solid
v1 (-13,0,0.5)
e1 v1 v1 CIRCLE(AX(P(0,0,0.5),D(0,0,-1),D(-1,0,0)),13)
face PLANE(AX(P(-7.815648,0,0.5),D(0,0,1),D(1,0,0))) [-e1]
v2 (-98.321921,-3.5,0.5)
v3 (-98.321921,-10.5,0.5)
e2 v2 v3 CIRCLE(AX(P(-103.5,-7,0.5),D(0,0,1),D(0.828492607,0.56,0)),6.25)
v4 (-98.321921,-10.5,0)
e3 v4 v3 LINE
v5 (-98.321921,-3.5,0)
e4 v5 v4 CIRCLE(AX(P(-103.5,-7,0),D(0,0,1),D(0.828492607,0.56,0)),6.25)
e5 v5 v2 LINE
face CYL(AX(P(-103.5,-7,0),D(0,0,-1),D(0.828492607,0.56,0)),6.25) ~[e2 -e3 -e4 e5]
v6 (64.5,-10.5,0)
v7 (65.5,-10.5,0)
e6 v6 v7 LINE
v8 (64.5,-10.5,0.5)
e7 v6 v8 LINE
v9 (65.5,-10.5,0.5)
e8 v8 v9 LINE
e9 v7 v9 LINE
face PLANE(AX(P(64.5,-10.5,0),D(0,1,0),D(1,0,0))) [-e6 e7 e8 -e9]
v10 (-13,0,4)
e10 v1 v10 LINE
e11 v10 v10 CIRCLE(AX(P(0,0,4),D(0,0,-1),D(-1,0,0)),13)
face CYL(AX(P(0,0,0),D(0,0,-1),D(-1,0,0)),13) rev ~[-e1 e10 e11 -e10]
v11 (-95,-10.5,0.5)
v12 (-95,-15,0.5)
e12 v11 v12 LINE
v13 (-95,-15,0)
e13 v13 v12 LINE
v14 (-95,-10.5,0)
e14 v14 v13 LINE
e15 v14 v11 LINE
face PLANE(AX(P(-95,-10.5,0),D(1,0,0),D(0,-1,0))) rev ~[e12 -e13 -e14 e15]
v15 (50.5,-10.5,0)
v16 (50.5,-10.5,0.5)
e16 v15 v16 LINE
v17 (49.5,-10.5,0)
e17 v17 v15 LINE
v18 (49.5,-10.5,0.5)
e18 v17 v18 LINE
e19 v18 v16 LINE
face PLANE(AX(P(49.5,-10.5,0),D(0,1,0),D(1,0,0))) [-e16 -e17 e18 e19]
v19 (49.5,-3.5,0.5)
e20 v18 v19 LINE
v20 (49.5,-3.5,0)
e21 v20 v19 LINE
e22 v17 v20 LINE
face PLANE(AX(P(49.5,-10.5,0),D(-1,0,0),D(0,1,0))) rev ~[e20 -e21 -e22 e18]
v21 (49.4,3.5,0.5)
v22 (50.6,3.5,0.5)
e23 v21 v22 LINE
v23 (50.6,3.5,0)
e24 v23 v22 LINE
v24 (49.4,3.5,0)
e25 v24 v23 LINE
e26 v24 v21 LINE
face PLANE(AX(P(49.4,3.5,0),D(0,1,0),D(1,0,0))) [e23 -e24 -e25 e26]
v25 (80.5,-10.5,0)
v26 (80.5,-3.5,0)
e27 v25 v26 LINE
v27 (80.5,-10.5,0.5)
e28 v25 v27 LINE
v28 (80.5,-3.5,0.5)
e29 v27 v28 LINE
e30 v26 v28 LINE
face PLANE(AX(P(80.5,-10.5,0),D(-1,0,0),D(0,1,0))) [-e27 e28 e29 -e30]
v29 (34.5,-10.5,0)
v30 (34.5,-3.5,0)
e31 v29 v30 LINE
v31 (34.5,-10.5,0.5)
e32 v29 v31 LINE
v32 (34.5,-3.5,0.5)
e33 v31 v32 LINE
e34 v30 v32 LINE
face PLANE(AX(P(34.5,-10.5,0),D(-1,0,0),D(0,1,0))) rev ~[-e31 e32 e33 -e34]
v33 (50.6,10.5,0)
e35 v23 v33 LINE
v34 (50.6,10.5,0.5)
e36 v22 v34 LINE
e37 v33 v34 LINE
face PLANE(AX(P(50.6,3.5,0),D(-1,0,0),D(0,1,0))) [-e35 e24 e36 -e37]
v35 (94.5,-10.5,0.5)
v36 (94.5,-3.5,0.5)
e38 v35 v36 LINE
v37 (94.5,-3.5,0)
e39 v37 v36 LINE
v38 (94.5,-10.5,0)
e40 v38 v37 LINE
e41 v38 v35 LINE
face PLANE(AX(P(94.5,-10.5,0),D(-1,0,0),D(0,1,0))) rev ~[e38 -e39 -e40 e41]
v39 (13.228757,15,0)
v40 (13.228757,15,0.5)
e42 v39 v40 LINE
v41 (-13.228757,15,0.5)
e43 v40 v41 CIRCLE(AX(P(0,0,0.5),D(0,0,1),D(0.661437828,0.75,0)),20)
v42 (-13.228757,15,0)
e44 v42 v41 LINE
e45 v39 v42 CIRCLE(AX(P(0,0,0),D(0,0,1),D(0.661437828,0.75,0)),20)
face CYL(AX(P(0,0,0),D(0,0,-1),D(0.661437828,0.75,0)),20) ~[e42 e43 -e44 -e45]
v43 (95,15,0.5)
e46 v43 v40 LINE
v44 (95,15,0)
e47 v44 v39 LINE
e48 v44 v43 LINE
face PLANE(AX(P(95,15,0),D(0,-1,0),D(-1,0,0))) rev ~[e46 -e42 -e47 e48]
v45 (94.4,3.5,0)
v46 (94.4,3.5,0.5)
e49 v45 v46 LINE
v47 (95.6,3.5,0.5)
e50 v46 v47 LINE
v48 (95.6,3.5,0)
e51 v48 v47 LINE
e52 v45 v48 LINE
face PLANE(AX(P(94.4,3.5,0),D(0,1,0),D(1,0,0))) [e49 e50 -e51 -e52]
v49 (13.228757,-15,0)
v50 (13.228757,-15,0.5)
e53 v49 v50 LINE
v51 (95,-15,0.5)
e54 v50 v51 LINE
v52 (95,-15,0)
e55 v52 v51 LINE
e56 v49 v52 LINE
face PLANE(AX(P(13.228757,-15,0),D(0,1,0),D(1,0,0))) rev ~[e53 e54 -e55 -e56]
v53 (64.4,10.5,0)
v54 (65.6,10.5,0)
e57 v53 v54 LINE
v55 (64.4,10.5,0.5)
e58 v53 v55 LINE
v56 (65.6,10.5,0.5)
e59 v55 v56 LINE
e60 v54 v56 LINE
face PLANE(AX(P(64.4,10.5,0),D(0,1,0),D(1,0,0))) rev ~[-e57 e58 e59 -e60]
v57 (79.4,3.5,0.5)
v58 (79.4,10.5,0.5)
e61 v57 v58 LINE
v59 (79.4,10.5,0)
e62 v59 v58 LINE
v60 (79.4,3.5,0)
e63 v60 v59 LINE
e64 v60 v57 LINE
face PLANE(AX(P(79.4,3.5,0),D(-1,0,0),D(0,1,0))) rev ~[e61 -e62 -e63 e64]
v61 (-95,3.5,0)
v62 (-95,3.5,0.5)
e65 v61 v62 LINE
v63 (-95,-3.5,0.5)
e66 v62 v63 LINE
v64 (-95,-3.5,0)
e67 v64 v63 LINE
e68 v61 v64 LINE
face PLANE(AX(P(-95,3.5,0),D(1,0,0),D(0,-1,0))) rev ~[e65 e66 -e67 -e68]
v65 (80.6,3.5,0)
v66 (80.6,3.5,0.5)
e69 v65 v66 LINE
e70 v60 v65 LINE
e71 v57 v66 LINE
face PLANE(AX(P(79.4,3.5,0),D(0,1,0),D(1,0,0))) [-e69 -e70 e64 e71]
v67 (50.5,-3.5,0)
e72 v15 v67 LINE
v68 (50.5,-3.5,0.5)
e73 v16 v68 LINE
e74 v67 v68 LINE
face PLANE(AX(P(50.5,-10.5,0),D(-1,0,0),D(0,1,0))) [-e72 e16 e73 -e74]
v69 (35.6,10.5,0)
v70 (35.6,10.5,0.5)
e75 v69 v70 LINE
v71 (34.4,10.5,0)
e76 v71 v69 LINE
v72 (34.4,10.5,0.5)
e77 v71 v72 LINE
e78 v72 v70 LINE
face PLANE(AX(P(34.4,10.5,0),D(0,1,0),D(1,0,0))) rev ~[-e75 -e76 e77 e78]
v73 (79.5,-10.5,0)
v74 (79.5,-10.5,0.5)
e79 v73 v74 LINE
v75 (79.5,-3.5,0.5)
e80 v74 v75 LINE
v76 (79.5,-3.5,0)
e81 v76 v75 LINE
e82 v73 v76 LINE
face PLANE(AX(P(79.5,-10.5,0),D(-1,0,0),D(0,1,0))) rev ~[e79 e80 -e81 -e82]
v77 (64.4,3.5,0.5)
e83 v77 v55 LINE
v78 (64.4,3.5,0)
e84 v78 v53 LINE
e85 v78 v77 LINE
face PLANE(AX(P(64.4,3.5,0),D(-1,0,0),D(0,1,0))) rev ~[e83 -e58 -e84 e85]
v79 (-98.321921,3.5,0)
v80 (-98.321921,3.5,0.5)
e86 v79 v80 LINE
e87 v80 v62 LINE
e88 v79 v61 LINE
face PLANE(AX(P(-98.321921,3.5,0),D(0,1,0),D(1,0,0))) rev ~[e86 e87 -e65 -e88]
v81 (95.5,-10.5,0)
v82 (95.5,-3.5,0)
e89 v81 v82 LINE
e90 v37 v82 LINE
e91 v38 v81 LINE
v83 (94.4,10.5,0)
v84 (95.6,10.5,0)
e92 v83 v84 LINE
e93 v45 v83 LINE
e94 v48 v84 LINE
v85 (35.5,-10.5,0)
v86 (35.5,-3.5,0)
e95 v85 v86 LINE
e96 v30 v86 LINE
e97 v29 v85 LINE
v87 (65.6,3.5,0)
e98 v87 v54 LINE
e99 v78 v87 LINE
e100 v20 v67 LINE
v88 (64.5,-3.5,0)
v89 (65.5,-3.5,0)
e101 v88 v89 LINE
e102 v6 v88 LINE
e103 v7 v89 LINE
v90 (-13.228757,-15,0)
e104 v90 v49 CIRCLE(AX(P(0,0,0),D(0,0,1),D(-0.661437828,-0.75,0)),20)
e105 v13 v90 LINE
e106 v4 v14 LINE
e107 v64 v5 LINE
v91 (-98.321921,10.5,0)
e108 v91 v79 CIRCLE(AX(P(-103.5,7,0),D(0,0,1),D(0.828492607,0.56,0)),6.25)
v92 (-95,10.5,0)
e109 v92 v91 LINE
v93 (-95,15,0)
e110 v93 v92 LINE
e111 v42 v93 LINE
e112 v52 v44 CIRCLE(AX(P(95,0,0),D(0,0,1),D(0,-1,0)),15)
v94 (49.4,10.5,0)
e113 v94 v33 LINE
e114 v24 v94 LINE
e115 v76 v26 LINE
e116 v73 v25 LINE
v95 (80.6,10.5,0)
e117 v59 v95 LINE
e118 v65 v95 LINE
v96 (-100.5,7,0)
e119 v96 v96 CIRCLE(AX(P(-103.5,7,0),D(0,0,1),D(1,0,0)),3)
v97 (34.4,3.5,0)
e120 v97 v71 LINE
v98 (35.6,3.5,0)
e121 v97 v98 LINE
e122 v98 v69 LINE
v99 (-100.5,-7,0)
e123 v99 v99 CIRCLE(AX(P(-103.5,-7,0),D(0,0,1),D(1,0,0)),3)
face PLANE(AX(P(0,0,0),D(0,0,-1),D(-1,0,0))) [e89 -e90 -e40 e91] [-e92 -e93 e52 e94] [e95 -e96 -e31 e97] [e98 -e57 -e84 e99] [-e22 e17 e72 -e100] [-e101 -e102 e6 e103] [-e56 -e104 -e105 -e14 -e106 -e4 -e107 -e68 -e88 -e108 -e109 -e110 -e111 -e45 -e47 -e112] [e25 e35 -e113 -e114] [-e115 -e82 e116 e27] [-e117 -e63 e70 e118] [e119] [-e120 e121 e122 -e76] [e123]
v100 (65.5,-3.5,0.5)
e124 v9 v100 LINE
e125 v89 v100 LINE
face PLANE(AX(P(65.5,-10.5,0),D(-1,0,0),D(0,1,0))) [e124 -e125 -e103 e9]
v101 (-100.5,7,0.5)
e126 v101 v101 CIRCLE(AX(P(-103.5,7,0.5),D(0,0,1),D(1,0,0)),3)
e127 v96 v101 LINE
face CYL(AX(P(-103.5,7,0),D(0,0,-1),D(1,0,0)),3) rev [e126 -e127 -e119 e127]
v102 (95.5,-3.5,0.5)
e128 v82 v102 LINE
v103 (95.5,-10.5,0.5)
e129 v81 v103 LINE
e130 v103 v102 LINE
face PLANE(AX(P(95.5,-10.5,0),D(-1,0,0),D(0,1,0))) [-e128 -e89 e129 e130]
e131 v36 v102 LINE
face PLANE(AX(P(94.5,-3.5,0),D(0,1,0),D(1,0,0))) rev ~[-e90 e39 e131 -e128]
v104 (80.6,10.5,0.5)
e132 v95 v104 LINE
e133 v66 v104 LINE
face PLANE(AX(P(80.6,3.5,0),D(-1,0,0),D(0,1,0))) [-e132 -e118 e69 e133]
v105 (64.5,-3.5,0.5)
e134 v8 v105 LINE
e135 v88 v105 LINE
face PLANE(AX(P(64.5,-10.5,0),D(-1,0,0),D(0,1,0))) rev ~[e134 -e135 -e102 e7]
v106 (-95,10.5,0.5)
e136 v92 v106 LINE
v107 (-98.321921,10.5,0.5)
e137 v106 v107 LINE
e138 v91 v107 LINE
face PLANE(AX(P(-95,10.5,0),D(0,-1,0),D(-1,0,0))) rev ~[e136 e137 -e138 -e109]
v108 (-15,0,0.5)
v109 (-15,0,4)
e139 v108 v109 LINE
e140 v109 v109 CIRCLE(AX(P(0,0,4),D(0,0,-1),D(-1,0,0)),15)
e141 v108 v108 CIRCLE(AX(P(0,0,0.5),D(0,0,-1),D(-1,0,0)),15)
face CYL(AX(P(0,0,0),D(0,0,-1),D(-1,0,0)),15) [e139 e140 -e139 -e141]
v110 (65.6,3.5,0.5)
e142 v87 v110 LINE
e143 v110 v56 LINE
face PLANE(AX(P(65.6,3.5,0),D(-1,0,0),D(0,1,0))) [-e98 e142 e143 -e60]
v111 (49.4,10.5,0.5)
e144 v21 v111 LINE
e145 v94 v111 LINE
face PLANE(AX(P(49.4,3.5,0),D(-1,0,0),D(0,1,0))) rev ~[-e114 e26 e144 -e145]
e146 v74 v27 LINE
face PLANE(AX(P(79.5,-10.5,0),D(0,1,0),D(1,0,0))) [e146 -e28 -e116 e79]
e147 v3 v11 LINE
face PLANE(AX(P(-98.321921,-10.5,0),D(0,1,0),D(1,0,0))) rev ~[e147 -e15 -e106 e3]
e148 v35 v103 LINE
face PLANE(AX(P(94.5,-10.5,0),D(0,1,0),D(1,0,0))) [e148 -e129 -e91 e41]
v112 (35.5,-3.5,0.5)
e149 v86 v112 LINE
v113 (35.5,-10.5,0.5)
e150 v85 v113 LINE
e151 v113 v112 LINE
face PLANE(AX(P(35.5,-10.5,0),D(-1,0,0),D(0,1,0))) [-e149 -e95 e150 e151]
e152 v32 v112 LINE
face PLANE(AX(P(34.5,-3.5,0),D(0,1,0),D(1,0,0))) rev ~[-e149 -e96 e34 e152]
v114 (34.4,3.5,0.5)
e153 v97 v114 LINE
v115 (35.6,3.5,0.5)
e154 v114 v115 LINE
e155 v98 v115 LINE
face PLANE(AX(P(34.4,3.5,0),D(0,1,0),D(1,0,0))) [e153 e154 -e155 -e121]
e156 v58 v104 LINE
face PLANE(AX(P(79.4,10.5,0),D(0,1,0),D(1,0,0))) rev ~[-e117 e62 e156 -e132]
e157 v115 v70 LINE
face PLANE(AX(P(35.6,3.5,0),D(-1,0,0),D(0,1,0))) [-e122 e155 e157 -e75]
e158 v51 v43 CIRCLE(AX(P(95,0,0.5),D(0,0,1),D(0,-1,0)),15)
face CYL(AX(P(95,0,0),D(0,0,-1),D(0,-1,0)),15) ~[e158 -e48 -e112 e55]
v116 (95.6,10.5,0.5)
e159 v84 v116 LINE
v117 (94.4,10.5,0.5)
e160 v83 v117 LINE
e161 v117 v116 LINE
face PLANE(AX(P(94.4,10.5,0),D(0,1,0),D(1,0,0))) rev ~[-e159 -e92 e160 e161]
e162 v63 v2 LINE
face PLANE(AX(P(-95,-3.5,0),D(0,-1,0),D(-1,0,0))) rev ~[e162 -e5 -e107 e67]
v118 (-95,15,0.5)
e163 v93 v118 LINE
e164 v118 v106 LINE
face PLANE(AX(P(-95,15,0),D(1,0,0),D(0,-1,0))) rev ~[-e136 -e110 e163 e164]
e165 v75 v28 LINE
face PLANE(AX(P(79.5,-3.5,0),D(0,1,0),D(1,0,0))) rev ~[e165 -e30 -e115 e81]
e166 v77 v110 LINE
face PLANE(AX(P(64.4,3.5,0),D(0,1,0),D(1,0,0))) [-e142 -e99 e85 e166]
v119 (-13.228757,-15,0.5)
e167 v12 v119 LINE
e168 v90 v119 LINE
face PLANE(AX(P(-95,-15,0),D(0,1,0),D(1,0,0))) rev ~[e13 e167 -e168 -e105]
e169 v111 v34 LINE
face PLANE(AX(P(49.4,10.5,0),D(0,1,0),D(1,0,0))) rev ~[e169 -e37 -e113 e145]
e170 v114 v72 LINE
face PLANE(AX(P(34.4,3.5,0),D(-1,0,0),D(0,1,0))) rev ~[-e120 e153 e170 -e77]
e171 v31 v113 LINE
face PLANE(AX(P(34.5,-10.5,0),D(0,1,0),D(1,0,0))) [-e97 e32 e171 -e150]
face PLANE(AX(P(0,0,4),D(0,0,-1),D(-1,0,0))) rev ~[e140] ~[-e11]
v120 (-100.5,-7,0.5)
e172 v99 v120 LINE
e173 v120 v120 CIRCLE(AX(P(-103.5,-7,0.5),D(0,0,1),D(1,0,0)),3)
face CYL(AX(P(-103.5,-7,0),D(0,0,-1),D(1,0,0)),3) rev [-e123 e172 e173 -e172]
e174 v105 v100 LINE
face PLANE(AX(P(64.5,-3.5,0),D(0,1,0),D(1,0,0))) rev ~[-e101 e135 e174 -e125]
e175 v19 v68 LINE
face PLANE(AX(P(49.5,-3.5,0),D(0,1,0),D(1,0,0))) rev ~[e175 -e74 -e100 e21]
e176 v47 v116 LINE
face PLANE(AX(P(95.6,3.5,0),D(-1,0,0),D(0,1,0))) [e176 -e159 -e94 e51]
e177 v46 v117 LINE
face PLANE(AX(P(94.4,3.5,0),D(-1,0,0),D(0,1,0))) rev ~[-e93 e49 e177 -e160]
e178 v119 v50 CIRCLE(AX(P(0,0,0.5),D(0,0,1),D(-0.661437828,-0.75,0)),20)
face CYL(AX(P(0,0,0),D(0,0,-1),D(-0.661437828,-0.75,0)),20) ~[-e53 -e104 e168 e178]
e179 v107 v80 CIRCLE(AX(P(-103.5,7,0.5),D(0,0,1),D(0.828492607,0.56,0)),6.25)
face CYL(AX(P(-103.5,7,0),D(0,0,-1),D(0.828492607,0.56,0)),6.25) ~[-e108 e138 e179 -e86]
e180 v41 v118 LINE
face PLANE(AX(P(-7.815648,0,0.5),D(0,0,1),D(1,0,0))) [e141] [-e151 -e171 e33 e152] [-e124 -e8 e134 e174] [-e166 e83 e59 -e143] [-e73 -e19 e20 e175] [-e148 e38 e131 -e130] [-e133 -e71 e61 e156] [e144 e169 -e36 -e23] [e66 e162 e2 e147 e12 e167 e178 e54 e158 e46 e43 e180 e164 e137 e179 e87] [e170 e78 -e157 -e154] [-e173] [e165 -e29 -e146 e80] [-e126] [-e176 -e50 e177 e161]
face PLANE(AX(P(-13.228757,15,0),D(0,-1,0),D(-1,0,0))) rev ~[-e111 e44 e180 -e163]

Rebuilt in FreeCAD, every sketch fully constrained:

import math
import FreeCAD as App
import Part
import Sketcher
from FreeCAD import Vector
Q = App.Units.Quantity


def add_polygon(sketch, points):
    """Adds a closed chain of lines whose ends are joined by coincident constraints."""
    first, n = sketch.GeometryCount, len(points)
    for a, b in zip(points, points[1:] + points[:1]):
        sketch.addGeometry(Part.LineSegment(App.Vector(*a, 0), App.Vector(*b, 0)), False)
    for i in range(n):
        sketch.addConstraint(Sketcher.Constraint("Coincident", first + i, 2, first + (i + 1) % n, 1))

doc = App.newDocument("Part")
body = doc.addObject("PartDesign::Body", "Body")

sketch1 = body.newObject("Sketcher::SketchObject", "Sketch")
sketch1.AttachmentSupport = (doc.getObject("XY_Plane"), [""])
sketch1.MapMode = "FlatFace"
sketch1.addGeometry(Part.LineSegment(Vector(95, 15, 0), Vector(13.2, 15, 0)), False)
sketch1.addGeometry(Part.ArcOfCircle(Part.Circle(Vector(0, 0, 0), Vector(0, 0, 1), 20), math.radians(49), math.radians(131)), False)
sketch1.addGeometry(Part.LineSegment(Vector(-13.2, 15, 0), Vector(-95, 15, 0)), False)
sketch1.addGeometry(Part.LineSegment(Vector(-95, 15, 0), Vector(-95, 10.5, 0)), False)
sketch1.addGeometry(Part.LineSegment(Vector(-95, 10.5, 0), Vector(-98.3, 10.5, 0)), False)
sketch1.addGeometry(Part.ArcOfCircle(Part.Circle(Vector(-103.5, 7, 0), Vector(0, 0, 1), 6.2), math.radians(34), math.radians(326)), False)
sketch1.addGeometry(Part.LineSegment(Vector(-98.3, 3.5, 0), Vector(-95, 3.5, 0)), False)
sketch1.addGeometry(Part.LineSegment(Vector(-95, 3.5, 0), Vector(-95, -3.5, 0)), False)
sketch1.addGeometry(Part.LineSegment(Vector(-95, -3.5, 0), Vector(-98.3, -3.5, 0)), False)
sketch1.addGeometry(Part.ArcOfCircle(Part.Circle(Vector(-103.5, -7, 0), Vector(0, 0, 1), 6.2), math.radians(34), math.radians(326)), False)
sketch1.addGeometry(Part.LineSegment(Vector(-98.3, -10.5, 0), Vector(-95, -10.5, 0)), False)
sketch1.addGeometry(Part.LineSegment(Vector(-95, -10.5, 0), Vector(-95, -15, 0)), False)
sketch1.addGeometry(Part.LineSegment(Vector(-95, -15, 0), Vector(-13.2, -15, 0)), False)
sketch1.addGeometry(Part.ArcOfCircle(Part.Circle(Vector(0, 0, 0), Vector(0, 0, 1), 20), math.radians(-131), math.radians(-49)), False)
sketch1.addGeometry(Part.LineSegment(Vector(13.2, -15, 0), Vector(95, -15, 0)), False)
sketch1.addGeometry(Part.ArcOfCircle(Part.Circle(Vector(95, 0, 0), Vector(0, 0, 1), 15), math.radians(-90), math.radians(90)), False)
sketch1.addGeometry(Part.Circle(Vector(-103.5, -7, 0), Vector(0, 0, 1), 3), False)
add_polygon(sketch1, [(35.5, -10.5), (34.5, -10.5), (34.5, -3.5), (35.5, -3.5)])
add_polygon(sketch1, [(50.5, -10.5), (49.5, -10.5), (49.5, -3.5), (50.5, -3.5)])
add_polygon(sketch1, [(65.5, -10.5), (64.5, -10.5), (64.5, -3.5), (65.5, -3.5)])
add_polygon(sketch1, [(80.5, -10.5), (79.5, -10.5), (79.5, -3.5), (80.5, -3.5)])
add_polygon(sketch1, [(95.5, -10.5), (94.5, -10.5), (94.5, -3.5), (95.5, -3.5)])
sketch1.addGeometry(Part.Circle(Vector(-103.5, 7, 0), Vector(0, 0, 1), 3), False)
add_polygon(sketch1, [(35.6, 3.5), (34.4, 3.5), (34.4, 10.5), (35.6, 10.5)])
add_polygon(sketch1, [(50.6, 3.5), (49.4, 3.5), (49.4, 10.5), (50.6, 10.5)])
add_polygon(sketch1, [(65.6, 3.5), (64.4, 3.5), (64.4, 10.5), (65.6, 10.5)])
add_polygon(sketch1, [(80.6, 3.5), (79.4, 3.5), (79.4, 10.5), (80.6, 10.5)])
add_polygon(sketch1, [(95.6, 3.5), (94.4, 3.5), (94.4, 10.5), (95.6, 10.5)])
sketch1.addConstraint([
    Sketcher.Constraint("Coincident", 0, 2, 1, 1),
    Sketcher.Constraint("Coincident", 1, 2, 2, 1),
    Sketcher.Constraint("Coincident", 2, 2, 3, 1),
    Sketcher.Constraint("Coincident", 3, 2, 4, 1),
    Sketcher.Constraint("Coincident", 4, 2, 5, 1),
    Sketcher.Constraint("Coincident", 5, 2, 6, 1),
    Sketcher.Constraint("Coincident", 6, 2, 7, 1),
    Sketcher.Constraint("Coincident", 7, 2, 8, 1),
    Sketcher.Constraint("Coincident", 8, 2, 9, 1),
    Sketcher.Constraint("Coincident", 9, 2, 10, 1),
    Sketcher.Constraint("Coincident", 10, 2, 11, 1),
    Sketcher.Constraint("Coincident", 11, 2, 12, 1),
    Sketcher.Constraint("Coincident", 12, 2, 13, 1),
    Sketcher.Constraint("Coincident", 13, 2, 14, 1),
    Sketcher.Constraint("Tangent", 14, 2, 15, 1),
    Sketcher.Constraint("Tangent", 15, 2, 0, 1),
    Sketcher.Constraint("Horizontal", 0),
    Sketcher.Constraint("Horizontal", 2),
    Sketcher.Constraint("Vertical", 3),
    Sketcher.Constraint("Horizontal", 4),
    Sketcher.Constraint("Horizontal", 6),
    Sketcher.Constraint("Vertical", 7),
    Sketcher.Constraint("Horizontal", 8),
    Sketcher.Constraint("Horizontal", 10),
    Sketcher.Constraint("Vertical", 11),
    Sketcher.Constraint("Horizontal", 12),
    Sketcher.Constraint("Horizontal", 14),
    Sketcher.Constraint("Horizontal", 17),
    Sketcher.Constraint("Vertical", 18),
    Sketcher.Constraint("Horizontal", 19),
    Sketcher.Constraint("Vertical", 20),
    Sketcher.Constraint("Horizontal", 21),
    Sketcher.Constraint("Vertical", 22),
    Sketcher.Constraint("Horizontal", 23),
    Sketcher.Constraint("Vertical", 24),
    Sketcher.Constraint("Horizontal", 25),
    Sketcher.Constraint("Vertical", 26),
    Sketcher.Constraint("Horizontal", 27),
    Sketcher.Constraint("Vertical", 28),
    Sketcher.Constraint("Horizontal", 29),
    Sketcher.Constraint("Vertical", 30),
    Sketcher.Constraint("Horizontal", 31),
    Sketcher.Constraint("Vertical", 32),
    Sketcher.Constraint("Horizontal", 33),
    Sketcher.Constraint("Vertical", 34),
    Sketcher.Constraint("Horizontal", 35),
    Sketcher.Constraint("Vertical", 36),
    Sketcher.Constraint("Horizontal", 38),
    Sketcher.Constraint("Vertical", 39),
    Sketcher.Constraint("Horizontal", 40),
    Sketcher.Constraint("Vertical", 41),
    Sketcher.Constraint("Horizontal", 42),
    Sketcher.Constraint("Vertical", 43),
    Sketcher.Constraint("Horizontal", 44),
    Sketcher.Constraint("Vertical", 45),
    Sketcher.Constraint("Horizontal", 46),
    Sketcher.Constraint("Vertical", 47),
    Sketcher.Constraint("Horizontal", 48),
    Sketcher.Constraint("Vertical", 49),
    Sketcher.Constraint("Horizontal", 50),
    Sketcher.Constraint("Vertical", 51),
    Sketcher.Constraint("Horizontal", 52),
    Sketcher.Constraint("Vertical", 53),
    Sketcher.Constraint("Horizontal", 54),
    Sketcher.Constraint("Vertical", 55),
    Sketcher.Constraint("Horizontal", 56),
    Sketcher.Constraint("Vertical", 57),
    Sketcher.Constraint("Coincident", 1, 3, -1, 1),
    Sketcher.Constraint("Coincident", 13, 3, -1, 1),
    Sketcher.Constraint("Coincident", 16, 3, 9, 3),
    Sketcher.Constraint("Coincident", 37, 3, 5, 3),
    Sketcher.Constraint("Equal", 5, 9),
    Sketcher.Constraint("Equal", 1, 13),
    Sketcher.Constraint("Equal", 16, 37),
    Sketcher.Constraint("Symmetric", 2, 2, 14, 2, -1, 1),
    Sketcher.Constraint("Symmetric", 11, 2, 15, 2, -1, 1),
    Sketcher.Constraint("Symmetric", 5, 3, 9, 3, -1),
    Sketcher.Constraint("PointOnObject", 15, 3, -1),
    Sketcher.Constraint("Horizontal", 10, 2, 17, 2),
    Sketcher.Constraint("Horizontal", 8, 2, 18, 2),
    Sketcher.Constraint("Horizontal", 20, 2, 21, 2),
    Sketcher.Constraint("Horizontal", 19, 2, 22, 2),
    Sketcher.Constraint("Horizontal", 24, 2, 25, 2),
    Sketcher.Constraint("Horizontal", 23, 2, 26, 2),
    Sketcher.Constraint("Horizontal", 28, 2, 29, 2),
    Sketcher.Constraint("Horizontal", 27, 2, 30, 2),
    Sketcher.Constraint("Horizontal", 32, 2, 33, 2),
    Sketcher.Constraint("Horizontal", 31, 2, 34, 2),
    Sketcher.Constraint("Horizontal", 6, 2, 38, 2),
    Sketcher.Constraint("Horizontal", 4, 2, 39, 2),
    Sketcher.Constraint("Horizontal", 41, 2, 42, 2),
    Sketcher.Constraint("Horizontal", 40, 2, 43, 2),
    Sketcher.Constraint("Horizontal", 45, 2, 46, 2),
    Sketcher.Constraint("Horizontal", 44, 2, 47, 2),
    Sketcher.Constraint("Horizontal", 49, 2, 50, 2),
    Sketcher.Constraint("Horizontal", 48, 2, 51, 2),
    Sketcher.Constraint("Horizontal", 53, 2, 54, 2),
    Sketcher.Constraint("Horizontal", 52, 2, 55, 2),
    Sketcher.Constraint("Vertical", 4, 2, 5, 2),
    Sketcher.Constraint("Vertical", 3, 2, 6, 2),
    Sketcher.Constraint("Vertical", 5, 2, 8, 2),
    Sketcher.Constraint("Vertical", 8, 2, 9, 2),
    Sketcher.Constraint("Equal", 19, 21),
    Sketcher.Constraint("Equal", 23, 25),
    Sketcher.Constraint("Equal", 27, 29),
    Sketcher.Constraint("Equal", 31, 33),
    Sketcher.Constraint("Equal", 40, 42),
    Sketcher.Constraint("Equal", 44, 46),
    Sketcher.Constraint("Equal", 48, 50),
    Sketcher.Constraint("Equal", 52, 54),
    Sketcher.Constraint("Equal", 7, 18),
    Sketcher.Constraint("Diameter", 16, Q("6 mm")),
    Sketcher.Constraint("Radius", 1, Q("20 mm")),
    Sketcher.Constraint("Radius", 15, Q("15 mm")),
    Sketcher.Constraint("DistanceX", 17, 2, 17, 1, Q("1 mm")),
    Sketcher.Constraint("DistanceY", 7, 2, 7, 1, Q("7 mm")),
    Sketcher.Constraint("Radius", 5, Q("6.25 mm")),
    Sketcher.Constraint("DistanceX", 38, 2, 38, 1, Q("1.2 mm")),
    Sketcher.Constraint("DistanceX", -1, 1, 15, 3, Q("95 mm")),
    Sketcher.Constraint("DistanceX", 5, 3, -1, 1, Q("103.5 mm")),
    Sketcher.Constraint("DistanceX", -1, 1, 17, 2, Q("34.5 mm")),
    Sketcher.Constraint("DistanceX", -1, 1, 21, 2, Q("49.5 mm")),
    Sketcher.Constraint("DistanceX", -1, 1, 25, 2, Q("64.5 mm")),
    Sketcher.Constraint("DistanceX", -1, 1, 29, 2, Q("79.5 mm")),
    Sketcher.Constraint("DistanceX", -1, 1, 33, 2, Q("94.5 mm")),
    Sketcher.Constraint("DistanceX", -1, 1, 38, 2, Q("34.4 mm")),
    Sketcher.Constraint("DistanceX", -1, 1, 42, 2, Q("49.4 mm")),
    Sketcher.Constraint("DistanceX", -1, 1, 46, 2, Q("64.4 mm")),
    Sketcher.Constraint("DistanceX", -1, 1, 50, 2, Q("79.4 mm")),
    Sketcher.Constraint("DistanceX", -1, 1, 54, 2, Q("94.4 mm")),
])
pad1 = body.newObject("PartDesign::Pad", "Pad")
pad1.Profile = sketch1
pad1.Length = 0.5

sketch2 = body.newObject("Sketcher::SketchObject", "Sketch001")
sketch2.AttachmentSupport = (doc.getObject("XY_Plane"), [""])
sketch2.MapMode = "FlatFace"
sketch2.addGeometry([
    Part.Circle(Vector(0, 0, 0), Vector(0, 0, 1), 15),
    Part.Circle(Vector(0, 0, 0), Vector(0, 0, 1), 13),
], False)
sketch2.addConstraint([
    Sketcher.Constraint("Coincident", 0, 3, -1, 1),
    Sketcher.Constraint("Coincident", 1, 3, -1, 1),
    Sketcher.Constraint("Diameter", 0, Q("30 mm")),
    Sketcher.Constraint("Diameter", 1, Q("26 mm")),
])
pad2 = body.newObject("PartDesign::Pad", "Pad001")
pad2.Profile = sketch2
pad2.Length = 4

doc.recompute()
